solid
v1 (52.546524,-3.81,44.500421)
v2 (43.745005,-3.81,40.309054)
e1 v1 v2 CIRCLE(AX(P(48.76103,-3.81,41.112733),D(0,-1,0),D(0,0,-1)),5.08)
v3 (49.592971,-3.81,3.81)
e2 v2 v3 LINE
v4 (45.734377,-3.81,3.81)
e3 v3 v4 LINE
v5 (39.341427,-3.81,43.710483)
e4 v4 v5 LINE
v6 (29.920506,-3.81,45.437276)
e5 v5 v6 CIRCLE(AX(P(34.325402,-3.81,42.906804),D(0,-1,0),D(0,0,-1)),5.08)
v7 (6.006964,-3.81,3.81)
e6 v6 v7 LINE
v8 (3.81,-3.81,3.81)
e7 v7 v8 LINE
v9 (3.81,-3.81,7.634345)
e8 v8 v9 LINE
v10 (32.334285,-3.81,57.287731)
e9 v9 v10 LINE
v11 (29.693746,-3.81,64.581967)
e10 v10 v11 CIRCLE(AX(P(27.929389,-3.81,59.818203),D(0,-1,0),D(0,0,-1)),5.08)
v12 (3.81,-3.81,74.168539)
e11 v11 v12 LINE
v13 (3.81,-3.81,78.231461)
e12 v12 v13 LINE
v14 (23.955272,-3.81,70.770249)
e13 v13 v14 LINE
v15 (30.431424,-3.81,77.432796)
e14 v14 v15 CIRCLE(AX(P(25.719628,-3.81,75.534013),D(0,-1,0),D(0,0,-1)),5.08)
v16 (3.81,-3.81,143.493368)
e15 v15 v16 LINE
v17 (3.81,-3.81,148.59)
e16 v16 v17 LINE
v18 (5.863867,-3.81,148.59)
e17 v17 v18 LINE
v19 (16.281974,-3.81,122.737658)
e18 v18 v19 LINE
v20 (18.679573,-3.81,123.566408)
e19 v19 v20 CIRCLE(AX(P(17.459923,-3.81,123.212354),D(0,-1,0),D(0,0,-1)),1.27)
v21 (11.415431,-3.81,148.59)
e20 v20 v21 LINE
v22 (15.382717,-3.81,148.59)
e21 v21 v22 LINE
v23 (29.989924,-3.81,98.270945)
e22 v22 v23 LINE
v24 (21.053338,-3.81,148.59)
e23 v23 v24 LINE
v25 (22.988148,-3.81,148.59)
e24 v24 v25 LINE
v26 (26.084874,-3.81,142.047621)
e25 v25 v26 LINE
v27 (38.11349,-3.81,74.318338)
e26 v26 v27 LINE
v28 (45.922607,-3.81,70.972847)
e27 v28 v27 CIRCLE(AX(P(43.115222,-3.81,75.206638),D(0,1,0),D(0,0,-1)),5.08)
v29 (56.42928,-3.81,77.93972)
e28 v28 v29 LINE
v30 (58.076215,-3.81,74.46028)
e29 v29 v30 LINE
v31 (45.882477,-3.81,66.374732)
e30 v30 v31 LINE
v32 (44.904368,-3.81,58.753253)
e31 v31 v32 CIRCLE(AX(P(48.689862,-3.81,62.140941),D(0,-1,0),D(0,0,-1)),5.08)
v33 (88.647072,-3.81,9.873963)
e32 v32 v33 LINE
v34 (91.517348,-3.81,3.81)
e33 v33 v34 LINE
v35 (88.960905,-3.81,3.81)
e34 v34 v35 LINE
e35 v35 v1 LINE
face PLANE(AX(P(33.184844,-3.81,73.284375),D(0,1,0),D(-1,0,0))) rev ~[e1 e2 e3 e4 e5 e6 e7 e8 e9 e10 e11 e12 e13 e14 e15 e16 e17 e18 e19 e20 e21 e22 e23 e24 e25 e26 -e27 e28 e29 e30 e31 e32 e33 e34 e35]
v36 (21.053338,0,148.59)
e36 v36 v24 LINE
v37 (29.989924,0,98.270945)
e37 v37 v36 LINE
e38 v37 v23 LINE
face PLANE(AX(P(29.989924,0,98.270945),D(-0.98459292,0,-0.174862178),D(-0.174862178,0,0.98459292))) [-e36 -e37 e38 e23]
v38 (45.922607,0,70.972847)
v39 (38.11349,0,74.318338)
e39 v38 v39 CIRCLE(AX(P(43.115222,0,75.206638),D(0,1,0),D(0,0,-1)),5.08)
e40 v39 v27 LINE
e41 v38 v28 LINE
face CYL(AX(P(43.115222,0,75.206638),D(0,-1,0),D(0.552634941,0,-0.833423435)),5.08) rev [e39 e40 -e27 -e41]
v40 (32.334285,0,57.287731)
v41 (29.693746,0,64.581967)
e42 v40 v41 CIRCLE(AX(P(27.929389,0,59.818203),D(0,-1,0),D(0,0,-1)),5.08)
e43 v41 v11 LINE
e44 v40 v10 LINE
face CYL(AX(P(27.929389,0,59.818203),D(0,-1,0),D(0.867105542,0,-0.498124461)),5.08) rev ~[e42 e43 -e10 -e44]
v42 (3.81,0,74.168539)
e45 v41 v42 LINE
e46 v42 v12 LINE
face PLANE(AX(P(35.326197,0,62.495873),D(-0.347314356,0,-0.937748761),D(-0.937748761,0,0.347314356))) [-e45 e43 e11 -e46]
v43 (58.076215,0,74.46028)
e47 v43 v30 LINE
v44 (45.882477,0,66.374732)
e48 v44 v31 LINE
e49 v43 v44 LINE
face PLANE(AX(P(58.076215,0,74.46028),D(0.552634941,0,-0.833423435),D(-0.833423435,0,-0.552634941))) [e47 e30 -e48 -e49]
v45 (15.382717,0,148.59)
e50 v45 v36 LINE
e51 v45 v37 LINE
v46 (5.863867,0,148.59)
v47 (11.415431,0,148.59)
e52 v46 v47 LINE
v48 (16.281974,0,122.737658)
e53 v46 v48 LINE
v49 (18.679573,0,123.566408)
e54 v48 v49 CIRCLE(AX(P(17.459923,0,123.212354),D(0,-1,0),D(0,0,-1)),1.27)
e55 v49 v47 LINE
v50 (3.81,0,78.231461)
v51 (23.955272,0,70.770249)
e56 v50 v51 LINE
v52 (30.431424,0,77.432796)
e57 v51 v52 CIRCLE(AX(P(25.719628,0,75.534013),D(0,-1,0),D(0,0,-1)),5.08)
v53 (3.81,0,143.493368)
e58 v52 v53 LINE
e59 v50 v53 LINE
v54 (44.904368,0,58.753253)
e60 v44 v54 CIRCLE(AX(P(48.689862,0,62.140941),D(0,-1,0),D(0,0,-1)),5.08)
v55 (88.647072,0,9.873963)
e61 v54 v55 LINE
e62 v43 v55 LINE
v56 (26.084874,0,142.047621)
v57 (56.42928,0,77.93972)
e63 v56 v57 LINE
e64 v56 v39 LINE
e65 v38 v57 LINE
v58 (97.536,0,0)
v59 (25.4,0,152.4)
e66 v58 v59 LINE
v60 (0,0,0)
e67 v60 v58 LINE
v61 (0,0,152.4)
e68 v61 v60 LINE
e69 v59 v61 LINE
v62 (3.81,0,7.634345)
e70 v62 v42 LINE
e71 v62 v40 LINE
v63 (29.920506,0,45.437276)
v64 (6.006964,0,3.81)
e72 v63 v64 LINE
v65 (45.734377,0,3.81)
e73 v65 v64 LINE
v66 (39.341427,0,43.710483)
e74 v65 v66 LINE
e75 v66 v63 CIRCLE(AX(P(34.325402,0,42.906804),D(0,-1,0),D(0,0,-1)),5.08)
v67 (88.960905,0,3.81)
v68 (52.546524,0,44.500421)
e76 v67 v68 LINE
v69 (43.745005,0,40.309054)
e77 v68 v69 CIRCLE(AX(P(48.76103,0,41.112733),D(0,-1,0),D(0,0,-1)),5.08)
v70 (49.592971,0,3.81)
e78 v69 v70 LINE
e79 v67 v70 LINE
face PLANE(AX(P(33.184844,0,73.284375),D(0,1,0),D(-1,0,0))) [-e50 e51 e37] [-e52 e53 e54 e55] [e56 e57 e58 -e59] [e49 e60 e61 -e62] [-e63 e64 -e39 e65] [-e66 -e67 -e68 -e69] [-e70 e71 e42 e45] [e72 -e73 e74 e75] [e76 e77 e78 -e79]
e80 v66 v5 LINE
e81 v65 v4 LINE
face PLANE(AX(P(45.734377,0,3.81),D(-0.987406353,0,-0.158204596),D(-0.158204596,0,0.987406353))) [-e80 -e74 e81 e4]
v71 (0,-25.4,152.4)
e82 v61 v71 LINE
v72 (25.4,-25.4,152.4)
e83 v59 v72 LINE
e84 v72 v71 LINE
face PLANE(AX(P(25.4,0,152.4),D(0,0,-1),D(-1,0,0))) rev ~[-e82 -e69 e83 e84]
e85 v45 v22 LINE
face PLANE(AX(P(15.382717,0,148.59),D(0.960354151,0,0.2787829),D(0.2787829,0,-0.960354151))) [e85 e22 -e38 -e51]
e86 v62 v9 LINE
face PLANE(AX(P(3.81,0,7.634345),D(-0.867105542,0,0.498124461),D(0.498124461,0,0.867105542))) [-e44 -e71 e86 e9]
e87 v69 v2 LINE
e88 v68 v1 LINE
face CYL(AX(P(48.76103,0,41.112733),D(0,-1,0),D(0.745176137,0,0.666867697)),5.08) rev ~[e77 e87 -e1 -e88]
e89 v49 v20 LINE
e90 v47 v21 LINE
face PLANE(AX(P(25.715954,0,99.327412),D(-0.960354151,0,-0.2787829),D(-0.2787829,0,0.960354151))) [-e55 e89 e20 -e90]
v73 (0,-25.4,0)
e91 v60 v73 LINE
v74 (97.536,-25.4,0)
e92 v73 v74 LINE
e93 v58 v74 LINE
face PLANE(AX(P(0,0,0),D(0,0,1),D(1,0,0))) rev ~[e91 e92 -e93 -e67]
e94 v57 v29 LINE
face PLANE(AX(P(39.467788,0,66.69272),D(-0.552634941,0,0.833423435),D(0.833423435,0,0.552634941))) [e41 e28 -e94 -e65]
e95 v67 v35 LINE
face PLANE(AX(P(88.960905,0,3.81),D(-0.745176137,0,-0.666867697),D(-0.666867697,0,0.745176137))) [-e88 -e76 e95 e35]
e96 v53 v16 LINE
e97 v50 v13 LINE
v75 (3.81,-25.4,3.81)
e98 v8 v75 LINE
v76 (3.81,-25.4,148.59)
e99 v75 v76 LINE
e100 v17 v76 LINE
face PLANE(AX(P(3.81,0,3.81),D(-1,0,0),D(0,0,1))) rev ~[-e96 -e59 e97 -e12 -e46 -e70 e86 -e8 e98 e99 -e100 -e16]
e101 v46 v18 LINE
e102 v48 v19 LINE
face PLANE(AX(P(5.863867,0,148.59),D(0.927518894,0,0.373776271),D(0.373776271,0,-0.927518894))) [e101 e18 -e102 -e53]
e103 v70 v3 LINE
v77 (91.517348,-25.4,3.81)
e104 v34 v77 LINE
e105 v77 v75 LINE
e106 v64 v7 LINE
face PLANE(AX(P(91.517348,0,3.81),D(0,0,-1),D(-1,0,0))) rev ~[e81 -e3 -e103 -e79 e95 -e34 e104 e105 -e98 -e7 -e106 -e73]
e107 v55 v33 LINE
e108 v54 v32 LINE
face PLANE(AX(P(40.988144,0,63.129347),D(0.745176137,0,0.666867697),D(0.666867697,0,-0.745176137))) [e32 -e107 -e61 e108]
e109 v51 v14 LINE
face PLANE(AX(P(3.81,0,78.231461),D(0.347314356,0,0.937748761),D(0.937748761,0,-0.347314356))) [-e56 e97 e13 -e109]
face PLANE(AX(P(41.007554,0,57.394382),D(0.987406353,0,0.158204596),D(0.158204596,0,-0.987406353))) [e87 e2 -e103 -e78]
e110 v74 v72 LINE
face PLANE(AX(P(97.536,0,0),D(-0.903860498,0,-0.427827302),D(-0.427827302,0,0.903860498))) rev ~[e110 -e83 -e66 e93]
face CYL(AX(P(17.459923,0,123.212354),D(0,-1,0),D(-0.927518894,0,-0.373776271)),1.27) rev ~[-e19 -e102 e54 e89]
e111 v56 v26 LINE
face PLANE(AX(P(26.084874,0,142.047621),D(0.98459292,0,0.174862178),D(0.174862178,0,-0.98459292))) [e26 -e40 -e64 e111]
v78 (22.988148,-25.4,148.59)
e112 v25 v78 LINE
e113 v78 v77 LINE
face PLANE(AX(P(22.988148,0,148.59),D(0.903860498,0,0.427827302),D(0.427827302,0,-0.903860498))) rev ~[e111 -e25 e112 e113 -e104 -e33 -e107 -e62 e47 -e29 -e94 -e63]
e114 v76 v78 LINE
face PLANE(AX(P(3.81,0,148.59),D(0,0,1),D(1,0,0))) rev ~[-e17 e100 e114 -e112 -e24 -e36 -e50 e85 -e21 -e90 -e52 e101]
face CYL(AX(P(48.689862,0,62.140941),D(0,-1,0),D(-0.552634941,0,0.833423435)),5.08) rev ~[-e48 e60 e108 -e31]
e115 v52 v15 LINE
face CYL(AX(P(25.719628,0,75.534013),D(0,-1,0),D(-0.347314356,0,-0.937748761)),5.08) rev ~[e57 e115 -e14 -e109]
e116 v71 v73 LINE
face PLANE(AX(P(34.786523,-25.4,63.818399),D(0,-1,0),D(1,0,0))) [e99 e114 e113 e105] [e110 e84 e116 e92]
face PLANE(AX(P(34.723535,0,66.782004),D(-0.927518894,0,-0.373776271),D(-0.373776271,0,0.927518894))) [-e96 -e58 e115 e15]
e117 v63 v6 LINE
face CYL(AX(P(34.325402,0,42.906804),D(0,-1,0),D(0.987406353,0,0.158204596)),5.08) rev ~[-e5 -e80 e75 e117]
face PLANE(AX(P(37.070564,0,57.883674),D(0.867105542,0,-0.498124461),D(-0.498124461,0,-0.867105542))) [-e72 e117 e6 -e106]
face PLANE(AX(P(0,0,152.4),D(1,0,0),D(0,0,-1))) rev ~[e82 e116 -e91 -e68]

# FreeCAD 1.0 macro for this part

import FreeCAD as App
import Part
import Sketcher
Q = App.Units.Quantity


def edges_at(feature, points):
    """Names of the edges that pass closest to the given points."""
    edges = feature.Shape.Edges
    near = lambda p: min(range(len(edges)), key=lambda i: edges[i].distToShape(Part.Vertex(*p))[0])
    return sorted({f"Edge{near(p) + 1}" for p in points})


def add_polygon(sketch, points):
    """Adds a closed chain of lines whose ends are joined by coincident constraints."""
    first, n = sketch.GeometryCount, len(points)
    for a, b in zip(points, points[1:] + points[:1]):
        sketch.addGeometry(Part.LineSegment(App.Vector(*a, 0), App.Vector(*b, 0)), False)
    for i in range(n):
        sketch.addConstraint(Sketcher.Constraint("Coincident", first + i, 2, first + (i + 1) % n, 1))

doc = App.newDocument("Part")
body = doc.addObject("PartDesign::Body", "Body")

sketch1 = body.newObject("Sketcher::SketchObject", "Sketch")
sketch1.AttachmentSupport = (doc.getObject("XZ_Plane"), [""])
sketch1.MapMode = "FlatFace"
add_polygon(sketch1, [(0, 152), (0, 0), (98, 0), (25, 152)])
add_polygon(sketch1, [(92, 4), (4, 4), (4, 149), (23, 149)])
sketch1.addConstraint(Sketcher.Constraint("Vertical", 0))
sketch1.addConstraint(Sketcher.Constraint("Horizontal", 1))
sketch1.addConstraint(Sketcher.Constraint("Horizontal", 3))
sketch1.addConstraint(Sketcher.Constraint("Horizontal", 4))
sketch1.addConstraint(Sketcher.Constraint("Vertical", 5))
sketch1.addConstraint(Sketcher.Constraint("Horizontal", 6))
sketch1.addConstraint(Sketcher.Constraint("Coincident", 0, 2, -1, 1))
sketch1.addConstraint(Sketcher.Constraint("Parallel", 2, 7))
sketch1.addConstraint(Sketcher.Constraint("DistanceX", 3, 2, 3, 1, Q("1 in")))
sketch1.addConstraint(Sketcher.Constraint("DistanceY", 0, 2, 0, 1, Q("6 in")))
sketch1.addConstraint(Sketcher.Constraint("DistanceY", 5, 1, 5, 2, Q("5.7 in")))
sketch1.addConstraint(Sketcher.Constraint("DistanceX", 1, 1, 1, 2, Q("3.84 in")))
sketch1.addConstraint(Sketcher.Constraint("DistanceX", -1, 1, 4, 2, Q("0.15 in")))
sketch1.addConstraint(Sketcher.Constraint("DistanceY", -1, 1, 4, 2, Q("0.15 in")))
sketch1.addConstraint(Sketcher.Constraint("DistanceX", 4, 2, 4, 1, Q("87.707348 mm")))
pad1 = body.newObject("PartDesign::Pad", "Pad")
pad1.Profile = sketch1
pad1.Length = Q("1 in")

sketch2 = body.newObject("Sketcher::SketchObject", "Sketch001")
sketch2.AttachmentSupport = (doc.getObject("XZ_Plane"), [""])
sketch2.MapMode = "FlatFace"
add_polygon(sketch2, [(39.5, 66.7), (56.4, 77.9), (58.1, 74.5), (41, 63.1), (88.6, 9.9), (91.5, 3.8), (89, 3.8), (41, 57.4), (49.6, 3.8), (45.7, 3.8), (37.1, 57.9), (6, 3.8), (3.8, 3.8), (3.8, 7.6), (35.3, 62.5), (3.8, 74.2), (3.8, 78.2), (34.7, 66.8), (3.8, 143.5), (3.8, 148.6), (5.9, 148.6), (25.7, 99.3), (11.4, 148.6), (15.4, 148.6), (30, 98.3), (21.1, 148.6), (23, 148.6), (26.1, 142)])
sketch2.addConstraint(Sketcher.Constraint("Horizontal", 5))
sketch2.addConstraint(Sketcher.Constraint("Horizontal", 8))
sketch2.addConstraint(Sketcher.Constraint("Horizontal", 11))
sketch2.addConstraint(Sketcher.Constraint("Vertical", 12))
sketch2.addConstraint(Sketcher.Constraint("Vertical", 15))
sketch2.addConstraint(Sketcher.Constraint("Vertical", 18))
sketch2.addConstraint(Sketcher.Constraint("Horizontal", 19))
sketch2.addConstraint(Sketcher.Constraint("Horizontal", 22))
sketch2.addConstraint(Sketcher.Constraint("Horizontal", 25))
sketch2.addConstraint(Sketcher.Constraint("Parallel", 0, 2))
sketch2.addConstraint(Sketcher.Constraint("Parallel", 1, 4))
sketch2.addConstraint(Sketcher.Constraint("Parallel", 3, 6))
sketch2.addConstraint(Sketcher.Constraint("Parallel", 7, 9))
sketch2.addConstraint(Sketcher.Constraint("Parallel", 10, 13))
sketch2.addConstraint(Sketcher.Constraint("Parallel", 14, 16))
sketch2.addConstraint(Sketcher.Constraint("Parallel", 17, 20))
sketch2.addConstraint(Sketcher.Constraint("Parallel", 21, 23))
sketch2.addConstraint(Sketcher.Constraint("Parallel", 4, 26))
sketch2.addConstraint(Sketcher.Constraint("Parallel", 24, 27))
sketch2.addConstraint(Sketcher.Constraint("Horizontal", 5, 2, 7, 2))
sketch2.addConstraint(Sketcher.Constraint("Horizontal", 8, 2, 10, 2))
sketch2.addConstraint(Sketcher.Constraint("Horizontal", 19, 2, 21, 2))
sketch2.addConstraint(Sketcher.Constraint("Horizontal", 22, 2, 24, 2))
sketch2.addConstraint(Sketcher.Constraint("Vertical", 12, 2, 14, 2))
sketch2.addConstraint(Sketcher.Constraint("Vertical", 15, 2, 17, 2))
sketch2.addConstraint(Sketcher.Constraint("DistanceY", -1, 1, 4, 2, Q("0.15 in")))
sketch2.addConstraint(Sketcher.Constraint("DistanceX", -1, 1, 11, 2, Q("0.15 in")))
sketch2.addConstraint(Sketcher.Constraint("DistanceY", -1, 1, 18, 2, Q("5.85 in")))
sketch2.addConstraint(Sketcher.Constraint("DistanceY", 6, 2, 14, 2, Q("0.6603999 in")))
sketch2.addConstraint(Sketcher.Constraint("DistanceX", 25, 1, 25, 2, Q("1.93481 mm")))
sketch2.addConstraint(Sketcher.Constraint("DistanceY", 15, 1, 15, 2, Q("4.062922 mm")))
sketch2.addConstraint(Sketcher.Constraint("DistanceY", 18, 1, 18, 2, Q("5.096632 mm")))
sketch2.addConstraint(Sketcher.Constraint("DistanceY", 6, 2, 1, 2, Q("17.065898 mm")))
sketch2.addConstraint(Sketcher.Constraint("DistanceX", 7, 2, 3, 2, Q("39.054101 mm")))
sketch2.addConstraint(Sketcher.Constraint("DistanceX", 10, 2, 9, 2, Q("31.0636 mm")))
sketch2.addConstraint(Sketcher.Constraint("DistanceY", 9, 2, 13, 2, Q("4.6122 mm")))
sketch2.addConstraint(Sketcher.Constraint("Distance", 0, Q("20.351591 mm")))
sketch2.addConstraint(Sketcher.Constraint("Distance", 1, Q("3.849531 mm")))
sketch2.addConstraint(Sketcher.Constraint("Distance", 2, Q("20.503468 mm")))
sketch2.addConstraint(Sketcher.Constraint("Distance", 3, Q("71.466841 mm")))
sketch2.addConstraint(Sketcher.Constraint("Distance", 4, Q("6.708959 mm")))
sketch2.addConstraint(Sketcher.Constraint("Distance", 7, Q("54.267811 mm")))
sketch2.addConstraint(Sketcher.Constraint("Distance", 10, Q("62.361121 mm")))
sketch2.addConstraint(Sketcher.Constraint("Distance", 14, Q("33.608359 mm")))
sketch2.addConstraint(Sketcher.Constraint("Distance", 16, Q("32.96569 mm")))
sketch2.addConstraint(Sketcher.Constraint("Distance", 20, Q("53.11222 mm")))
sketch2.addConstraint(Sketcher.Constraint("Distance", 21, Q("51.296272 mm")))
sketch2.addConstraint(Sketcher.Constraint("DistanceX", 5, 2, 5, 1, Q("2.556443 mm")))
sketch2.addConstraint(Sketcher.Constraint("DistanceX", 8, 2, 8, 1, Q("3.858594 mm")))
sketch2.addConstraint(Sketcher.Constraint("DistanceX", 11, 2, 11, 1, Q("2.196964 mm")))
sketch2.addConstraint(Sketcher.Constraint("DistanceX", 19, 1, 19, 2, Q("2.053867 mm")))
sketch2.addConstraint(Sketcher.Constraint("DistanceX", 22, 1, 22, 2, Q("3.967286 mm")))
sketch2.addConstraint(Sketcher.Constraint("DistanceY", 12, 1, 12, 2, Q("3.824345 mm")))
sketch2.addConstraint(Sketcher.Constraint("DistanceX", -1, 1, 0, 2, Q("56.42928 mm")))
sketch2.addConstraint(Sketcher.Constraint("DistanceY", -1, 1, 26, 2, Q("142.047621 mm")))
sketch2.addConstraint(Sketcher.Constraint("DistanceX", 20, 2, 23, 2, Q("4.27397 mm")))
pad2 = body.newObject("PartDesign::Pad", "Pad001")
pad2.Profile = sketch2
pad2.Length = Q("0.15 in")
doc.recompute()

fillet = body.newObject("PartDesign::Fillet", "Fillet")
fillet.Base = (pad2, edges_at(pad2, [
    (40.988, -1.905, 63.129),
    (41.008, -1.905, 57.394),
    (35.326, -1.905, 62.496),
    (37.071, -1.905, 57.884),
    (39.468, -1.905, 66.693),
    (34.724, -1.905, 66.782),
]))
fillet.Radius = Q("0.2 in")
doc.recompute()

fillet2 = body.newObject("PartDesign::Fillet", "Fillet001")
fillet2.Base = (fillet, edges_at(fillet, [(25.716, -1.905, 99.327)]))
fillet2.Radius = Q("0.05 in")

doc.recompute()
